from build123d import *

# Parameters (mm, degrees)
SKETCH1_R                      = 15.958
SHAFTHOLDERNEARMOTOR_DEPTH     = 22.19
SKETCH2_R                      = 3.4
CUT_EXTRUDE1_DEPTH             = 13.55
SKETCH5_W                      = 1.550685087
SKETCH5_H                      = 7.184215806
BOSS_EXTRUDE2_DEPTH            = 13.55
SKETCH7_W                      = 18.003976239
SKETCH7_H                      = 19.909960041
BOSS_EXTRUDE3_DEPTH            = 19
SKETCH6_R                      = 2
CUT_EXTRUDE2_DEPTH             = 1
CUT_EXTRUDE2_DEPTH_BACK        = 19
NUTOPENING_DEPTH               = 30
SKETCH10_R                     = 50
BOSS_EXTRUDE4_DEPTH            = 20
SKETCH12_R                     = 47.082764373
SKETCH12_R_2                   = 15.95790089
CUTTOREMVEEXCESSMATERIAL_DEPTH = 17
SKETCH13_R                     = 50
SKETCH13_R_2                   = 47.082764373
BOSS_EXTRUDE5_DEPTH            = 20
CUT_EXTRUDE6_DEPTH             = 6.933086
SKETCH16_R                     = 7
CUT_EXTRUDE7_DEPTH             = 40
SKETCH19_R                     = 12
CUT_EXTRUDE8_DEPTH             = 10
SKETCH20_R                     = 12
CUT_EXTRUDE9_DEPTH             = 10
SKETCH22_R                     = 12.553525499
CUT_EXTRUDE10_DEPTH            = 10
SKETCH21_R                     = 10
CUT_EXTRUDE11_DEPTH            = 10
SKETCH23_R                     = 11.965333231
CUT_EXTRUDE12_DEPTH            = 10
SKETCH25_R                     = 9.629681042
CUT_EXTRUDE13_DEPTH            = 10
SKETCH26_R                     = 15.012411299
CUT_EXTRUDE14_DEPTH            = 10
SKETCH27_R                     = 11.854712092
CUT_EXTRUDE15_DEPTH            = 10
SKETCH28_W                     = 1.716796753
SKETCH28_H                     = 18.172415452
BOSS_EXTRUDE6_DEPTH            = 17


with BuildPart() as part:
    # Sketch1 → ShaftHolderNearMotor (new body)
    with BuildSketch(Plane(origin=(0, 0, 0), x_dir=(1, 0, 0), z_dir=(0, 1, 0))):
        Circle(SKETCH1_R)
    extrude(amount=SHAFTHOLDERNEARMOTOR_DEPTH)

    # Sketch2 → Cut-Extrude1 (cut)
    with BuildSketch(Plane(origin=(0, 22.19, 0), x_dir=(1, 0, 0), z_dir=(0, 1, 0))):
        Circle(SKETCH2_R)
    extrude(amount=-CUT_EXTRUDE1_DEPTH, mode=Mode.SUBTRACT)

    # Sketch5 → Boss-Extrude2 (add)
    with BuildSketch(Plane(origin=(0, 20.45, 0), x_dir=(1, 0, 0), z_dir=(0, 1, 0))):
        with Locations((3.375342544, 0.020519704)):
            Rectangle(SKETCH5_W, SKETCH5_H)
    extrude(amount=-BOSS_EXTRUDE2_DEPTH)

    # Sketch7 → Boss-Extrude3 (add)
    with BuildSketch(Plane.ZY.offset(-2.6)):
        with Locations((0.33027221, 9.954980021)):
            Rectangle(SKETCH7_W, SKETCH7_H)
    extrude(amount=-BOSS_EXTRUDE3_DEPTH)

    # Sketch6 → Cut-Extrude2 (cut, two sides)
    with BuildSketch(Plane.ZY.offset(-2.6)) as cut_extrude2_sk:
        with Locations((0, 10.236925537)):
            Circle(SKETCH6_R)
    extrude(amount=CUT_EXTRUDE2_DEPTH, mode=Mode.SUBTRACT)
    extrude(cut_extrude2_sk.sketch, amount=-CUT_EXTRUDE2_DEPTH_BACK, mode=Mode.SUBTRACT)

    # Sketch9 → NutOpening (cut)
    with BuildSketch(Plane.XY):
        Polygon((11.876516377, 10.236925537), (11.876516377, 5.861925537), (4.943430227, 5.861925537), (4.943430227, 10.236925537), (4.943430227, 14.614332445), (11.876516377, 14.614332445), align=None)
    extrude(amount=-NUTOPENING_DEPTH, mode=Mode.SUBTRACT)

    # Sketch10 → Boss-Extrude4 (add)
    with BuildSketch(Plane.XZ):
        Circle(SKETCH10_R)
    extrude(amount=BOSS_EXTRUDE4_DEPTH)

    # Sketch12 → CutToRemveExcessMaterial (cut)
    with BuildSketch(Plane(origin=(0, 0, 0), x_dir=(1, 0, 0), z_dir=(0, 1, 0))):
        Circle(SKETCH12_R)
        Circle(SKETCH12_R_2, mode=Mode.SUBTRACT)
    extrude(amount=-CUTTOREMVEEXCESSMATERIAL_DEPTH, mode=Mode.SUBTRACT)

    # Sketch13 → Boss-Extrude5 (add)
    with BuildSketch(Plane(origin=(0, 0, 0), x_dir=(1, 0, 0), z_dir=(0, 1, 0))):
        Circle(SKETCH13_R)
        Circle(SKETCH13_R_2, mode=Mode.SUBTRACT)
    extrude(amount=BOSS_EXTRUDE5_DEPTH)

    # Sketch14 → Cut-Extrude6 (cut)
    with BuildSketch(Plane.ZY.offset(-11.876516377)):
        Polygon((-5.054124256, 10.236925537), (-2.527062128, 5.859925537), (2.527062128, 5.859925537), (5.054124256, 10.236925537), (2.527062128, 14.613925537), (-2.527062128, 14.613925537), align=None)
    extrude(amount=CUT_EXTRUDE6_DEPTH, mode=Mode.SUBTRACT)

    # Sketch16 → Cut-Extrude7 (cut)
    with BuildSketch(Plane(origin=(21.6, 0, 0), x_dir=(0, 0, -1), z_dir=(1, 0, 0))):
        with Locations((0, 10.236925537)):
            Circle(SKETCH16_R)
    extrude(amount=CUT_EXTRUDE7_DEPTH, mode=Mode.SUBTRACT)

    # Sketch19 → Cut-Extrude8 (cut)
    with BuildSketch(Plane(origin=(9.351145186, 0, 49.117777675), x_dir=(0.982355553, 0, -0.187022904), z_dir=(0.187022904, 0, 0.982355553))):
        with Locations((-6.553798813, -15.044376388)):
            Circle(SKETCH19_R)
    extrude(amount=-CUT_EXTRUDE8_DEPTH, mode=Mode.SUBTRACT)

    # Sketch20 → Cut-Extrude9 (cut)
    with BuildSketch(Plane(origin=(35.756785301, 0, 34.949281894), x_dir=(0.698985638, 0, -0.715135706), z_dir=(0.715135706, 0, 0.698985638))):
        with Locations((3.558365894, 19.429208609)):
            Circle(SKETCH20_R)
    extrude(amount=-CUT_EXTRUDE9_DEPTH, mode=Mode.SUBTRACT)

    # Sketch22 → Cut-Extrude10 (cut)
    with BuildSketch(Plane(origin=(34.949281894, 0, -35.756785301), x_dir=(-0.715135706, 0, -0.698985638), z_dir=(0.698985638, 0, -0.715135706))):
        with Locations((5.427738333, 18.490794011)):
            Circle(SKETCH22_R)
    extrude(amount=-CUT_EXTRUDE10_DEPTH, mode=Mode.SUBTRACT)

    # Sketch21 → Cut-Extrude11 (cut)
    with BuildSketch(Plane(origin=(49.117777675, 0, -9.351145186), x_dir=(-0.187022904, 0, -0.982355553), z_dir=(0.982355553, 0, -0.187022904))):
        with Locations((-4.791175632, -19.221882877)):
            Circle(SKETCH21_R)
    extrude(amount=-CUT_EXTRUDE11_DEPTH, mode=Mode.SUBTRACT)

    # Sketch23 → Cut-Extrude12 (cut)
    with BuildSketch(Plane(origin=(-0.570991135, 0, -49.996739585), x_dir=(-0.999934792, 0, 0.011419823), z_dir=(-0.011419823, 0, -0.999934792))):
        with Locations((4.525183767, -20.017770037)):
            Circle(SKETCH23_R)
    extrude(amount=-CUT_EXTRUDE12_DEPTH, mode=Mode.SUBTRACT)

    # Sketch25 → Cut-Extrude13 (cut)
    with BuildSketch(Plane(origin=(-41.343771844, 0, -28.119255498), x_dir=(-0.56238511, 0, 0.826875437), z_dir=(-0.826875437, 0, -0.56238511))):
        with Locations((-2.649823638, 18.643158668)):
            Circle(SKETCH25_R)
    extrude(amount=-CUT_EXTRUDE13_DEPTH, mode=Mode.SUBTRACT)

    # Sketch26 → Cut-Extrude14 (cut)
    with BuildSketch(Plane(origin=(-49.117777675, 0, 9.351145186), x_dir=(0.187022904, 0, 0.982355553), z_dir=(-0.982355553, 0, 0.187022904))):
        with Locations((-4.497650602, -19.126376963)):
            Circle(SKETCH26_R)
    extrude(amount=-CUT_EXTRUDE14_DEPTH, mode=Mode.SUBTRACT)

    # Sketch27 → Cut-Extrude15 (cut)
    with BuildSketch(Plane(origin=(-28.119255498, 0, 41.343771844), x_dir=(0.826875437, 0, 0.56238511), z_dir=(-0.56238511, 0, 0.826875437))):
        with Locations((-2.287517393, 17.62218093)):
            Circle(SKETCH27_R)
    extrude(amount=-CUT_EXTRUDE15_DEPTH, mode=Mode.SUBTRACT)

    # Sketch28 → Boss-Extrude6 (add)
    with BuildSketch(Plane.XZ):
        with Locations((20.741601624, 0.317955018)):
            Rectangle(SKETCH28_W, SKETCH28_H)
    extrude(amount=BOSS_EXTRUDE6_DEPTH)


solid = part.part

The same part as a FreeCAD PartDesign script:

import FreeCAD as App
import Part
import Sketcher

V = App.Vector
Q = App.Units.Quantity

doc = App.newDocument("Part")
body = doc.addObject("PartDesign::Body", "Body")

# Sketch on XZ plane
sketch1 = body.newObject("Sketcher::SketchObject", "Sketch")
sketch1.AttachmentSupport = (doc.getObject("XZ_Plane"), [""])
sketch1.MapMode = "FlatFace"
sketch1.addGeometry(Part.Circle(V(0, 0, 0), V(0, 0, 1), 16), False)
sketch1.addConstraint([
    Sketcher.Constraint("Coincident", 0, 3, -1, 1),
    Sketcher.Constraint("Diameter", 0, 31.916),
])
pad1 = body.newObject("PartDesign::Pad", "Pad")
pad1.Profile = sketch1
pad1.Length = 22.19
pad1.Reversed = True

# Sketch on XZ plane
sketch2 = body.newObject("Sketcher::SketchObject", "Sketch001")
sketch2.AttachmentSupport = (doc.getObject("XZ_Plane"), [""])
sketch2.MapMode = "FlatFace"
sketch2.AttachmentOffset = App.Placement(V(0, 0, -22.19), App.Rotation())
sketch2.addGeometry(Part.Circle(V(0, 0, 0), V(0, 0, 1), 3.4), False)
sketch2.addConstraint([
    Sketcher.Constraint("Coincident", 0, 3, -1, 1),
    Sketcher.Constraint("Diameter", 0, 6.8),
])
pocket1 = body.newObject("PartDesign::Pocket", "Pocket")
pocket1.Profile = sketch2
pocket1.Length = 13.55
pocket1.Reversed = True

# Sketch on XZ plane
sketch3 = body.newObject("Sketcher::SketchObject", "Sketch002")
sketch3.AttachmentSupport = (doc.getObject("XZ_Plane"), [""])
sketch3.MapMode = "FlatFace"
sketch3.AttachmentOffset = App.Placement(V(0, 0, -20.45), App.Rotation())
sketch3.addGeometry([
    Part.LineSegment(V(2.6, -3.6, 0), V(2.6, 3.6, 0)),
    Part.LineSegment(V(2.6, 3.6, 0), V(4.2, 3.6, 0)),
    Part.LineSegment(V(4.2, 3.6, 0), V(4.2, -3.6, 0)),
    Part.LineSegment(V(4.2, -3.6, 0), V(2.6, -3.6, 0)),
], False)
sketch3.addConstraint([
    Sketcher.Constraint("Coincident", 0, 2, 1, 1),
    Sketcher.Constraint("Coincident", 1, 2, 2, 1),
    Sketcher.Constraint("Coincident", 2, 2, 3, 1),
    Sketcher.Constraint("Coincident", 3, 2, 0, 1),
    Sketcher.Constraint("Vertical", 0),
    Sketcher.Constraint("Horizontal", 1),
    Sketcher.Constraint("Vertical", 2),
    Sketcher.Constraint("Horizontal", 3),
    Sketcher.Constraint("DistanceX", -1, 1, 0, 2, 2.6),
    Sketcher.Constraint("DistanceX", 1, 1, 1, 2, 1.550685),
    Sketcher.Constraint("DistanceY", 0, 1, 0, 2, 7.184216),
    Sketcher.Constraint("DistanceY", -1, 1, 0, 2, 3.571588),
])
pad2 = body.newObject("PartDesign::Pad", "Pad001")
pad2.Profile = sketch3
pad2.Length = 13.55

# Sketch on YZ plane
sketch4 = body.newObject("Sketcher::SketchObject", "Sketch003")
sketch4.AttachmentSupport = (doc.getObject("YZ_Plane"), [""])
sketch4.MapMode = "FlatFace"
sketch4.AttachmentOffset = App.Placement(V(0, 0, 2.6), App.Rotation())
sketch4.addGeometry([
    Part.LineSegment(V(20, -9, 0), V(0, -9, 0)),
    Part.LineSegment(V(0, -9, 0), V(0, 9, 0)),
    Part.LineSegment(V(0, 9, 0), V(20, 9, 0)),
    Part.LineSegment(V(20, 9, 0), V(20, -9, 0)),
], False)
sketch4.addConstraint([
    Sketcher.Constraint("Coincident", 0, 2, 1, 1),
    Sketcher.Constraint("Coincident", 1, 2, 2, 1),
    Sketcher.Constraint("Coincident", 2, 2, 3, 1),
    Sketcher.Constraint("Coincident", 3, 2, 0, 1),
    Sketcher.Constraint("Horizontal", 0),
    Sketcher.Constraint("Vertical", 1),
    Sketcher.Constraint("Horizontal", 2),
    Sketcher.Constraint("Vertical", 3),
    Sketcher.Constraint("PointOnObject", 0, 2, -2),
    Sketcher.Constraint("DistanceX", 0, 2, 0, 1, 19.90996),
    Sketcher.Constraint("DistanceY", 1, 1, 1, 2, 18.003976),
    Sketcher.Constraint("DistanceY", -1, 1, 1, 2, 9.33226),
])
pad3 = body.newObject("PartDesign::Pad", "Pad002")
pad3.Profile = sketch4
pad3.Length = 19

# Sketch on YZ plane
sketch5 = body.newObject("Sketcher::SketchObject", "Sketch004")
sketch5.AttachmentSupport = (doc.getObject("YZ_Plane"), [""])
sketch5.MapMode = "FlatFace"
sketch5.AttachmentOffset = App.Placement(V(0, 0, 2.6), App.Rotation())
sketch5.addGeometry(Part.Circle(V(10.2, 0, 0), V(0, 0, 1), 2), False)
sketch5.addConstraint([
    Sketcher.Constraint("PointOnObject", 0, 3, -1),
    Sketcher.Constraint("Diameter", 0, 4.0),
    Sketcher.Constraint("DistanceX", -1, 1, 0, 3, 10.236926),
])
pocket2 = body.newObject("PartDesign::Pocket", "Pocket001")
pocket2.Profile = sketch5
pocket2.Type = "TwoLengths"
pocket2.Length = 1
pocket2.Length2 = 19

# Sketch on XY plane
sketch6 = body.newObject("Sketcher::SketchObject", "Sketch005")
sketch6.AttachmentSupport = (doc.getObject("XY_Plane"), [""])
sketch6.MapMode = "FlatFace"
sketch6.addGeometry([
    Part.LineSegment(V(12, 6, 0), V(12, 15, 0)),
    Part.LineSegment(V(12, 15, 0), V(5, 15, 0)),
    Part.LineSegment(V(5, 15, 0), V(5, 6, 0)),
    Part.LineSegment(V(5, 6, 0), V(12, 6, 0)),
], False)
sketch6.addConstraint([
    Sketcher.Constraint("Coincident", 0, 2, 1, 1),
    Sketcher.Constraint("Coincident", 1, 2, 2, 1),
    Sketcher.Constraint("Coincident", 2, 2, 3, 1),
    Sketcher.Constraint("Coincident", 3, 2, 0, 1),
    Sketcher.Constraint("Vertical", 0),
    Sketcher.Constraint("Horizontal", 1),
    Sketcher.Constraint("Vertical", 2),
    Sketcher.Constraint("Horizontal", 3),
    Sketcher.Constraint("DistanceX", 1, 2, 1, 1, 6.933086),
    Sketcher.Constraint("DistanceY", 0, 1, 0, 2, 8.752407),
    Sketcher.Constraint("DistanceX", -1, 1, 1, 2, 4.94343),
    Sketcher.Constraint("DistanceY", -1, 1, 0, 2, 14.614332),
])
pocket3 = body.newObject("PartDesign::Pocket", "Pocket002")
pocket3.Profile = sketch6
pocket3.Length = 30

# Sketch on XZ plane
sketch7 = body.newObject("Sketcher::SketchObject", "Sketch006")
sketch7.AttachmentSupport = (doc.getObject("XZ_Plane"), [""])
sketch7.MapMode = "FlatFace"
sketch7.addGeometry(Part.Circle(V(0, 0, 0), V(0, 0, 1), 50), False)
sketch7.addConstraint([
    Sketcher.Constraint("Coincident", 0, 3, -1, 1),
    Sketcher.Constraint("Diameter", 0, 100.0),
])
pad4 = body.newObject("PartDesign::Pad", "Pad003")
pad4.Profile = sketch7
pad4.Length = 20

# Sketch on XZ plane
sketch8 = body.newObject("Sketcher::SketchObject", "Sketch007")
sketch8.AttachmentSupport = (doc.getObject("XZ_Plane"), [""])
sketch8.MapMode = "FlatFace"
sketch8.addGeometry([
    Part.Circle(V(0, 0, 0), V(0, 0, 1), 47),
    Part.Circle(V(0, 0, 0), V(0, 0, 1), 16),
], False)
sketch8.addConstraint([
    Sketcher.Constraint("Coincident", 0, 3, -1, 1),
    Sketcher.Constraint("Coincident", 1, 3, -1, 1),
    Sketcher.Constraint("Diameter", 1, 31.915802),
    Sketcher.Constraint("Diameter", 0, 94.165529),
])
pocket4 = body.newObject("PartDesign::Pocket", "Pocket003")
pocket4.Profile = sketch8
pocket4.Length = 17
pocket4.Reversed = True

# Sketch on XZ plane
sketch9 = body.newObject("Sketcher::SketchObject", "Sketch008")
sketch9.AttachmentSupport = (doc.getObject("XZ_Plane"), [""])
sketch9.MapMode = "FlatFace"
sketch9.addGeometry([
    Part.Circle(V(0, 0, 0), V(0, 0, 1), 50),
    Part.Circle(V(0, 0, 0), V(0, 0, 1), 47),
], False)
sketch9.addConstraint([
    Sketcher.Constraint("Coincident", 0, 3, -1, 1),
    Sketcher.Constraint("Coincident", 1, 3, -1, 1),
    Sketcher.Constraint("Diameter", 0, 100.0),
    Sketcher.Constraint("Diameter", 1, 94.165529),
])
pad5 = body.newObject("PartDesign::Pad", "Pad004")
pad5.Profile = sketch9
pad5.Length = 20
pad5.Reversed = True

# Sketch on YZ plane
sketch10 = body.newObject("Sketcher::SketchObject", "Sketch009")
sketch10.AttachmentSupport = (doc.getObject("YZ_Plane"), [""])
sketch10.MapMode = "FlatFace"
sketch10.AttachmentOffset = App.Placement(V(0, 0, 11.876516), App.Rotation())
sketch10.addGeometry([
    Part.LineSegment(V(10, -5, 0), V(6, -3, 0)),  # 0
    Part.LineSegment(V(6, -3, 0), V(6, 3, 0)),  # 1
    Part.LineSegment(V(6, 3, 0), V(10, 5, 0)),  # 2
    Part.LineSegment(V(10, 5, 0), V(15, 3, 0)),  # 3
    Part.LineSegment(V(15, 3, 0), V(15, -3, 0)),  # 4
    Part.LineSegment(V(15, -3, 0), V(10, -5, 0)),  # 5
], False)
sketch10.addConstraint([
    Sketcher.Constraint("Coincident", 0, 2, 1, 1),
    Sketcher.Constraint("Coincident", 1, 2, 2, 1),
    Sketcher.Constraint("Coincident", 2, 2, 3, 1),
    Sketcher.Constraint("Coincident", 3, 2, 4, 1),
    Sketcher.Constraint("Coincident", 4, 2, 5, 1),
    Sketcher.Constraint("Coincident", 5, 2, 0, 1),
    Sketcher.Constraint("Vertical", 1),
    Sketcher.Constraint("Vertical", 4),
    Sketcher.Constraint("Symmetric", 2, 2, 5, 2, -1),
    Sketcher.Constraint("Parallel", 0, 3),
    Sketcher.Constraint("Parallel", 2, 5),
    Sketcher.Constraint("Horizontal", 1, 2, 3, 2),
    Sketcher.Constraint("Horizontal", 0, 2, 4, 2),
    Sketcher.Constraint("Angle", 0, Q("150 deg")),
    Sketcher.Constraint("DistanceX", 1, 2, 2, 2, 4.377),
    Sketcher.Constraint("DistanceY", 1, 1, 1, 2, 5.054124),
    Sketcher.Constraint("DistanceX", -1, 1, 0, 2, 5.859926),
])
pocket5 = body.newObject("PartDesign::Pocket", "Pocket004")
pocket5.Profile = sketch10
pocket5.Length = 6.933086

# Sketch on YZ plane
sketch11 = body.newObject("Sketcher::SketchObject", "Sketch010")
sketch11.AttachmentSupport = (doc.getObject("YZ_Plane"), [""])
sketch11.MapMode = "FlatFace"
sketch11.AttachmentOffset = App.Placement(V(0, 0, 21.6), App.Rotation())
sketch11.addGeometry(Part.Circle(V(10, 0, 0), V(0, 0, 1), 7), False)
sketch11.addConstraint([
    Sketcher.Constraint("PointOnObject", 0, 3, -1),
    Sketcher.Constraint("Diameter", 0, 14.0),
    Sketcher.Constraint("DistanceX", -1, 1, 0, 3, 10.236926),
])
pocket6 = body.newObject("PartDesign::Pocket", "Pocket005")
pocket6.Profile = sketch11
pocket6.Length = 40
pocket6.Reversed = True

# Sketch on an angled plane
sketch12 = body.newObject("Sketcher::SketchObject", "Sketch011")
sketch12.Placement = App.Placement(V(9.351145, 0, 49.117778), App.Rotation(V(0.982355553, 0, -0.187022904), V(0, 0.999999999, 0), V(0.187022904, 0, 0.982355553), "ZXY"))
sketch12.addGeometry(Part.Circle(V(-7, -15, 0), V(0, 0, 1), 12), False)
sketch12.addConstraint([
    Sketcher.Constraint("Diameter", 0, 24.0),
    Sketcher.Constraint("DistanceX", 0, 3, -1, 1, 6.553799),
    Sketcher.Constraint("DistanceY", 0, 3, -1, 1, 15.044376),
])
pocket7 = body.newObject("PartDesign::Pocket", "Pocket006")
pocket7.Profile = sketch12
pocket7.Length = 10

# Sketch on an angled plane
sketch13 = body.newObject("Sketcher::SketchObject", "Sketch012")
sketch13.Placement = App.Placement(V(35.756785, 0, 34.949282), App.Rotation(V(0.698985638, 0, -0.715135706), V(0, 1, 0), V(0.715135706, 0, 0.698985638), "ZXY"))
sketch13.addGeometry(Part.Circle(V(4, 19, 0), V(0, 0, 1), 12), False)
sketch13.addConstraint([
    Sketcher.Constraint("Diameter", 0, 24.0),
    Sketcher.Constraint("DistanceY", -1, 1, 0, 3, 19.429209),
    Sketcher.Constraint("DistanceX", -1, 1, 0, 3, 3.558366),
])
pocket8 = body.newObject("PartDesign::Pocket", "Pocket007")
pocket8.Profile = sketch13
pocket8.Length = 10

# Sketch on an angled plane
sketch14 = body.newObject("Sketcher::SketchObject", "Sketch013")
sketch14.Placement = App.Placement(V(34.949282, 0, -35.756785), App.Rotation(V(-0.715135706, 0, -0.698985638), V(0, 1, 0), V(0.698985638, 0, -0.715135706), "ZXY"))
sketch14.addGeometry(Part.Circle(V(5, 18, 0), V(0, 0, 1), 13), False)
sketch14.addConstraint([
    Sketcher.Constraint("Diameter", 0, 25.107051),
    Sketcher.Constraint("DistanceX", -1, 1, 0, 3, 5.427738),
    Sketcher.Constraint("DistanceY", -1, 1, 0, 3, 18.490794),
])
pocket9 = body.newObject("PartDesign::Pocket", "Pocket008")
pocket9.Profile = sketch14
pocket9.Length = 10

# Sketch on an angled plane
sketch15 = body.newObject("Sketcher::SketchObject", "Sketch014")
sketch15.Placement = App.Placement(V(49.117778, 0, -9.351145), App.Rotation(V(-0.187022904, 0, -0.982355553), V(0, 0.999999999, 0), V(0.982355553, 0, -0.187022904), "ZXY"))
sketch15.addGeometry(Part.Circle(V(-5, -19, 0), V(0, 0, 1), 10), False)
sketch15.addConstraint([
    Sketcher.Constraint("Diameter", 0, 20.0),
    Sketcher.Constraint("DistanceX", 0, 3, -1, 1, 4.791176),
    Sketcher.Constraint("DistanceY", 0, 3, -1, 1, 19.221883),
])
pocket10 = body.newObject("PartDesign::Pocket", "Pocket009")
pocket10.Profile = sketch15
pocket10.Length = 10

# Sketch on an angled plane
sketch16 = body.newObject("Sketcher::SketchObject", "Sketch015")
sketch16.Placement = App.Placement(V(-0.570991, 0, -49.99674), App.Rotation(V(-0.999934792, 0, 0.011419823), V(0, 1.000000001, 0), V(-0.011419823, 0, -0.999934792), "ZXY"))
sketch16.addGeometry(Part.Circle(V(5, -20, 0), V(0, 0, 1), 12), False)
sketch16.addConstraint([
    Sketcher.Constraint("Diameter", 0, 23.930666),
    Sketcher.Constraint("DistanceY", 0, 3, -1, 1, 20.01777),
    Sketcher.Constraint("DistanceX", -1, 1, 0, 3, 4.525184),
])
pocket11 = body.newObject("PartDesign::Pocket", "Pocket010")
pocket11.Profile = sketch16
pocket11.Length = 10

# Sketch on an angled plane
sketch17 = body.newObject("Sketcher::SketchObject", "Sketch016")
sketch17.Placement = App.Placement(V(-41.343772, 0, -28.119255), App.Rotation(V(-0.56238511, 0, 0.826875437), V(0, 1, 0), V(-0.826875437, 0, -0.56238511), "ZXY"))
sketch17.addGeometry(Part.Circle(V(-3, 19, 0), V(0, 0, 1), 10), False)
sketch17.addConstraint([
    Sketcher.Constraint("Diameter", 0, 19.259362),
    Sketcher.Constraint("DistanceY", -1, 1, 0, 3, 18.643159),
    Sketcher.Constraint("DistanceX", 0, 3, -1, 1, 2.649824),
])
pocket12 = body.newObject("PartDesign::Pocket", "Pocket011")
pocket12.Profile = sketch17
pocket12.Length = 10

# Sketch on an angled plane
sketch18 = body.newObject("Sketcher::SketchObject", "Sketch017")
sketch18.Placement = App.Placement(V(-49.117778, 0, 9.351145), App.Rotation(V(0.187022904, 0, 0.982355553), V(0, 0.999999999, 0), V(-0.982355553, 0, 0.187022904), "ZXY"))
sketch18.addGeometry(Part.Circle(V(-4, -19, 0), V(0, 0, 1), 15), False)
sketch18.addConstraint([
    Sketcher.Constraint("Diameter", 0, 30.024823),
    Sketcher.Constraint("DistanceX", 0, 3, -1, 1, 4.497651),
    Sketcher.Constraint("DistanceY", 0, 3, -1, 1, 19.126377),
])
pocket13 = body.newObject("PartDesign::Pocket", "Pocket012")
pocket13.Profile = sketch18
pocket13.Length = 10

# Sketch on an angled plane
sketch19 = body.newObject("Sketcher::SketchObject", "Sketch018")
sketch19.Placement = App.Placement(V(-28.119255, 0, 41.343772), App.Rotation(V(0.826875437, 0, 0.56238511), V(0, 1, 0), V(-0.56238511, 0, 0.826875437), "ZXY"))
sketch19.addGeometry(Part.Circle(V(-2, 18, 0), V(0, 0, 1), 12), False)
sketch19.addConstraint([
    Sketcher.Constraint("Diameter", 0, 23.709424),
    Sketcher.Constraint("DistanceY", -1, 1, 0, 3, 17.622181),
    Sketcher.Constraint("DistanceX", 0, 3, -1, 1, 2.287517),
])
pocket14 = body.newObject("PartDesign::Pocket", "Pocket013")
pocket14.Profile = sketch19
pocket14.Length = 10

# Sketch on XZ plane
sketch20 = body.newObject("Sketcher::SketchObject", "Sketch019")
sketch20.AttachmentSupport = (doc.getObject("XZ_Plane"), [""])
sketch20.MapMode = "FlatFace"
sketch20.addGeometry([
    Part.LineSegment(V(19.9, 9.4, 0), V(19.9, -8.8, 0)),
    Part.LineSegment(V(19.9, -8.8, 0), V(21.6, -8.8, 0)),
    Part.LineSegment(V(21.6, -8.8, 0), V(21.6, 9.4, 0)),
    Part.LineSegment(V(21.6, 9.4, 0), V(19.9, 9.4, 0)),
], False)
sketch20.addConstraint([
    Sketcher.Constraint("Coincident", 0, 2, 1, 1),
    Sketcher.Constraint("Coincident", 1, 2, 2, 1),
    Sketcher.Constraint("Coincident", 2, 2, 3, 1),
    Sketcher.Constraint("Coincident", 3, 2, 0, 1),
    Sketcher.Constraint("Vertical", 0),
    Sketcher.Constraint("Horizontal", 1),
    Sketcher.Constraint("Vertical", 2),
    Sketcher.Constraint("Horizontal", 3),
    Sketcher.Constraint("DistanceX", -1, 1, 1, 2, 21.6),
    Sketcher.Constraint("DistanceX", 1, 1, 1, 2, 1.716797),
    Sketcher.Constraint("DistanceY", 0, 2, 0, 1, 18.172415),
    Sketcher.Constraint("DistanceY", 0, 2, -1, 1, 8.768253),
])
pad6 = body.newObject("PartDesign::Pad", "Pad005")
pad6.Profile = sketch20
pad6.Length = 17

doc.recompute()
